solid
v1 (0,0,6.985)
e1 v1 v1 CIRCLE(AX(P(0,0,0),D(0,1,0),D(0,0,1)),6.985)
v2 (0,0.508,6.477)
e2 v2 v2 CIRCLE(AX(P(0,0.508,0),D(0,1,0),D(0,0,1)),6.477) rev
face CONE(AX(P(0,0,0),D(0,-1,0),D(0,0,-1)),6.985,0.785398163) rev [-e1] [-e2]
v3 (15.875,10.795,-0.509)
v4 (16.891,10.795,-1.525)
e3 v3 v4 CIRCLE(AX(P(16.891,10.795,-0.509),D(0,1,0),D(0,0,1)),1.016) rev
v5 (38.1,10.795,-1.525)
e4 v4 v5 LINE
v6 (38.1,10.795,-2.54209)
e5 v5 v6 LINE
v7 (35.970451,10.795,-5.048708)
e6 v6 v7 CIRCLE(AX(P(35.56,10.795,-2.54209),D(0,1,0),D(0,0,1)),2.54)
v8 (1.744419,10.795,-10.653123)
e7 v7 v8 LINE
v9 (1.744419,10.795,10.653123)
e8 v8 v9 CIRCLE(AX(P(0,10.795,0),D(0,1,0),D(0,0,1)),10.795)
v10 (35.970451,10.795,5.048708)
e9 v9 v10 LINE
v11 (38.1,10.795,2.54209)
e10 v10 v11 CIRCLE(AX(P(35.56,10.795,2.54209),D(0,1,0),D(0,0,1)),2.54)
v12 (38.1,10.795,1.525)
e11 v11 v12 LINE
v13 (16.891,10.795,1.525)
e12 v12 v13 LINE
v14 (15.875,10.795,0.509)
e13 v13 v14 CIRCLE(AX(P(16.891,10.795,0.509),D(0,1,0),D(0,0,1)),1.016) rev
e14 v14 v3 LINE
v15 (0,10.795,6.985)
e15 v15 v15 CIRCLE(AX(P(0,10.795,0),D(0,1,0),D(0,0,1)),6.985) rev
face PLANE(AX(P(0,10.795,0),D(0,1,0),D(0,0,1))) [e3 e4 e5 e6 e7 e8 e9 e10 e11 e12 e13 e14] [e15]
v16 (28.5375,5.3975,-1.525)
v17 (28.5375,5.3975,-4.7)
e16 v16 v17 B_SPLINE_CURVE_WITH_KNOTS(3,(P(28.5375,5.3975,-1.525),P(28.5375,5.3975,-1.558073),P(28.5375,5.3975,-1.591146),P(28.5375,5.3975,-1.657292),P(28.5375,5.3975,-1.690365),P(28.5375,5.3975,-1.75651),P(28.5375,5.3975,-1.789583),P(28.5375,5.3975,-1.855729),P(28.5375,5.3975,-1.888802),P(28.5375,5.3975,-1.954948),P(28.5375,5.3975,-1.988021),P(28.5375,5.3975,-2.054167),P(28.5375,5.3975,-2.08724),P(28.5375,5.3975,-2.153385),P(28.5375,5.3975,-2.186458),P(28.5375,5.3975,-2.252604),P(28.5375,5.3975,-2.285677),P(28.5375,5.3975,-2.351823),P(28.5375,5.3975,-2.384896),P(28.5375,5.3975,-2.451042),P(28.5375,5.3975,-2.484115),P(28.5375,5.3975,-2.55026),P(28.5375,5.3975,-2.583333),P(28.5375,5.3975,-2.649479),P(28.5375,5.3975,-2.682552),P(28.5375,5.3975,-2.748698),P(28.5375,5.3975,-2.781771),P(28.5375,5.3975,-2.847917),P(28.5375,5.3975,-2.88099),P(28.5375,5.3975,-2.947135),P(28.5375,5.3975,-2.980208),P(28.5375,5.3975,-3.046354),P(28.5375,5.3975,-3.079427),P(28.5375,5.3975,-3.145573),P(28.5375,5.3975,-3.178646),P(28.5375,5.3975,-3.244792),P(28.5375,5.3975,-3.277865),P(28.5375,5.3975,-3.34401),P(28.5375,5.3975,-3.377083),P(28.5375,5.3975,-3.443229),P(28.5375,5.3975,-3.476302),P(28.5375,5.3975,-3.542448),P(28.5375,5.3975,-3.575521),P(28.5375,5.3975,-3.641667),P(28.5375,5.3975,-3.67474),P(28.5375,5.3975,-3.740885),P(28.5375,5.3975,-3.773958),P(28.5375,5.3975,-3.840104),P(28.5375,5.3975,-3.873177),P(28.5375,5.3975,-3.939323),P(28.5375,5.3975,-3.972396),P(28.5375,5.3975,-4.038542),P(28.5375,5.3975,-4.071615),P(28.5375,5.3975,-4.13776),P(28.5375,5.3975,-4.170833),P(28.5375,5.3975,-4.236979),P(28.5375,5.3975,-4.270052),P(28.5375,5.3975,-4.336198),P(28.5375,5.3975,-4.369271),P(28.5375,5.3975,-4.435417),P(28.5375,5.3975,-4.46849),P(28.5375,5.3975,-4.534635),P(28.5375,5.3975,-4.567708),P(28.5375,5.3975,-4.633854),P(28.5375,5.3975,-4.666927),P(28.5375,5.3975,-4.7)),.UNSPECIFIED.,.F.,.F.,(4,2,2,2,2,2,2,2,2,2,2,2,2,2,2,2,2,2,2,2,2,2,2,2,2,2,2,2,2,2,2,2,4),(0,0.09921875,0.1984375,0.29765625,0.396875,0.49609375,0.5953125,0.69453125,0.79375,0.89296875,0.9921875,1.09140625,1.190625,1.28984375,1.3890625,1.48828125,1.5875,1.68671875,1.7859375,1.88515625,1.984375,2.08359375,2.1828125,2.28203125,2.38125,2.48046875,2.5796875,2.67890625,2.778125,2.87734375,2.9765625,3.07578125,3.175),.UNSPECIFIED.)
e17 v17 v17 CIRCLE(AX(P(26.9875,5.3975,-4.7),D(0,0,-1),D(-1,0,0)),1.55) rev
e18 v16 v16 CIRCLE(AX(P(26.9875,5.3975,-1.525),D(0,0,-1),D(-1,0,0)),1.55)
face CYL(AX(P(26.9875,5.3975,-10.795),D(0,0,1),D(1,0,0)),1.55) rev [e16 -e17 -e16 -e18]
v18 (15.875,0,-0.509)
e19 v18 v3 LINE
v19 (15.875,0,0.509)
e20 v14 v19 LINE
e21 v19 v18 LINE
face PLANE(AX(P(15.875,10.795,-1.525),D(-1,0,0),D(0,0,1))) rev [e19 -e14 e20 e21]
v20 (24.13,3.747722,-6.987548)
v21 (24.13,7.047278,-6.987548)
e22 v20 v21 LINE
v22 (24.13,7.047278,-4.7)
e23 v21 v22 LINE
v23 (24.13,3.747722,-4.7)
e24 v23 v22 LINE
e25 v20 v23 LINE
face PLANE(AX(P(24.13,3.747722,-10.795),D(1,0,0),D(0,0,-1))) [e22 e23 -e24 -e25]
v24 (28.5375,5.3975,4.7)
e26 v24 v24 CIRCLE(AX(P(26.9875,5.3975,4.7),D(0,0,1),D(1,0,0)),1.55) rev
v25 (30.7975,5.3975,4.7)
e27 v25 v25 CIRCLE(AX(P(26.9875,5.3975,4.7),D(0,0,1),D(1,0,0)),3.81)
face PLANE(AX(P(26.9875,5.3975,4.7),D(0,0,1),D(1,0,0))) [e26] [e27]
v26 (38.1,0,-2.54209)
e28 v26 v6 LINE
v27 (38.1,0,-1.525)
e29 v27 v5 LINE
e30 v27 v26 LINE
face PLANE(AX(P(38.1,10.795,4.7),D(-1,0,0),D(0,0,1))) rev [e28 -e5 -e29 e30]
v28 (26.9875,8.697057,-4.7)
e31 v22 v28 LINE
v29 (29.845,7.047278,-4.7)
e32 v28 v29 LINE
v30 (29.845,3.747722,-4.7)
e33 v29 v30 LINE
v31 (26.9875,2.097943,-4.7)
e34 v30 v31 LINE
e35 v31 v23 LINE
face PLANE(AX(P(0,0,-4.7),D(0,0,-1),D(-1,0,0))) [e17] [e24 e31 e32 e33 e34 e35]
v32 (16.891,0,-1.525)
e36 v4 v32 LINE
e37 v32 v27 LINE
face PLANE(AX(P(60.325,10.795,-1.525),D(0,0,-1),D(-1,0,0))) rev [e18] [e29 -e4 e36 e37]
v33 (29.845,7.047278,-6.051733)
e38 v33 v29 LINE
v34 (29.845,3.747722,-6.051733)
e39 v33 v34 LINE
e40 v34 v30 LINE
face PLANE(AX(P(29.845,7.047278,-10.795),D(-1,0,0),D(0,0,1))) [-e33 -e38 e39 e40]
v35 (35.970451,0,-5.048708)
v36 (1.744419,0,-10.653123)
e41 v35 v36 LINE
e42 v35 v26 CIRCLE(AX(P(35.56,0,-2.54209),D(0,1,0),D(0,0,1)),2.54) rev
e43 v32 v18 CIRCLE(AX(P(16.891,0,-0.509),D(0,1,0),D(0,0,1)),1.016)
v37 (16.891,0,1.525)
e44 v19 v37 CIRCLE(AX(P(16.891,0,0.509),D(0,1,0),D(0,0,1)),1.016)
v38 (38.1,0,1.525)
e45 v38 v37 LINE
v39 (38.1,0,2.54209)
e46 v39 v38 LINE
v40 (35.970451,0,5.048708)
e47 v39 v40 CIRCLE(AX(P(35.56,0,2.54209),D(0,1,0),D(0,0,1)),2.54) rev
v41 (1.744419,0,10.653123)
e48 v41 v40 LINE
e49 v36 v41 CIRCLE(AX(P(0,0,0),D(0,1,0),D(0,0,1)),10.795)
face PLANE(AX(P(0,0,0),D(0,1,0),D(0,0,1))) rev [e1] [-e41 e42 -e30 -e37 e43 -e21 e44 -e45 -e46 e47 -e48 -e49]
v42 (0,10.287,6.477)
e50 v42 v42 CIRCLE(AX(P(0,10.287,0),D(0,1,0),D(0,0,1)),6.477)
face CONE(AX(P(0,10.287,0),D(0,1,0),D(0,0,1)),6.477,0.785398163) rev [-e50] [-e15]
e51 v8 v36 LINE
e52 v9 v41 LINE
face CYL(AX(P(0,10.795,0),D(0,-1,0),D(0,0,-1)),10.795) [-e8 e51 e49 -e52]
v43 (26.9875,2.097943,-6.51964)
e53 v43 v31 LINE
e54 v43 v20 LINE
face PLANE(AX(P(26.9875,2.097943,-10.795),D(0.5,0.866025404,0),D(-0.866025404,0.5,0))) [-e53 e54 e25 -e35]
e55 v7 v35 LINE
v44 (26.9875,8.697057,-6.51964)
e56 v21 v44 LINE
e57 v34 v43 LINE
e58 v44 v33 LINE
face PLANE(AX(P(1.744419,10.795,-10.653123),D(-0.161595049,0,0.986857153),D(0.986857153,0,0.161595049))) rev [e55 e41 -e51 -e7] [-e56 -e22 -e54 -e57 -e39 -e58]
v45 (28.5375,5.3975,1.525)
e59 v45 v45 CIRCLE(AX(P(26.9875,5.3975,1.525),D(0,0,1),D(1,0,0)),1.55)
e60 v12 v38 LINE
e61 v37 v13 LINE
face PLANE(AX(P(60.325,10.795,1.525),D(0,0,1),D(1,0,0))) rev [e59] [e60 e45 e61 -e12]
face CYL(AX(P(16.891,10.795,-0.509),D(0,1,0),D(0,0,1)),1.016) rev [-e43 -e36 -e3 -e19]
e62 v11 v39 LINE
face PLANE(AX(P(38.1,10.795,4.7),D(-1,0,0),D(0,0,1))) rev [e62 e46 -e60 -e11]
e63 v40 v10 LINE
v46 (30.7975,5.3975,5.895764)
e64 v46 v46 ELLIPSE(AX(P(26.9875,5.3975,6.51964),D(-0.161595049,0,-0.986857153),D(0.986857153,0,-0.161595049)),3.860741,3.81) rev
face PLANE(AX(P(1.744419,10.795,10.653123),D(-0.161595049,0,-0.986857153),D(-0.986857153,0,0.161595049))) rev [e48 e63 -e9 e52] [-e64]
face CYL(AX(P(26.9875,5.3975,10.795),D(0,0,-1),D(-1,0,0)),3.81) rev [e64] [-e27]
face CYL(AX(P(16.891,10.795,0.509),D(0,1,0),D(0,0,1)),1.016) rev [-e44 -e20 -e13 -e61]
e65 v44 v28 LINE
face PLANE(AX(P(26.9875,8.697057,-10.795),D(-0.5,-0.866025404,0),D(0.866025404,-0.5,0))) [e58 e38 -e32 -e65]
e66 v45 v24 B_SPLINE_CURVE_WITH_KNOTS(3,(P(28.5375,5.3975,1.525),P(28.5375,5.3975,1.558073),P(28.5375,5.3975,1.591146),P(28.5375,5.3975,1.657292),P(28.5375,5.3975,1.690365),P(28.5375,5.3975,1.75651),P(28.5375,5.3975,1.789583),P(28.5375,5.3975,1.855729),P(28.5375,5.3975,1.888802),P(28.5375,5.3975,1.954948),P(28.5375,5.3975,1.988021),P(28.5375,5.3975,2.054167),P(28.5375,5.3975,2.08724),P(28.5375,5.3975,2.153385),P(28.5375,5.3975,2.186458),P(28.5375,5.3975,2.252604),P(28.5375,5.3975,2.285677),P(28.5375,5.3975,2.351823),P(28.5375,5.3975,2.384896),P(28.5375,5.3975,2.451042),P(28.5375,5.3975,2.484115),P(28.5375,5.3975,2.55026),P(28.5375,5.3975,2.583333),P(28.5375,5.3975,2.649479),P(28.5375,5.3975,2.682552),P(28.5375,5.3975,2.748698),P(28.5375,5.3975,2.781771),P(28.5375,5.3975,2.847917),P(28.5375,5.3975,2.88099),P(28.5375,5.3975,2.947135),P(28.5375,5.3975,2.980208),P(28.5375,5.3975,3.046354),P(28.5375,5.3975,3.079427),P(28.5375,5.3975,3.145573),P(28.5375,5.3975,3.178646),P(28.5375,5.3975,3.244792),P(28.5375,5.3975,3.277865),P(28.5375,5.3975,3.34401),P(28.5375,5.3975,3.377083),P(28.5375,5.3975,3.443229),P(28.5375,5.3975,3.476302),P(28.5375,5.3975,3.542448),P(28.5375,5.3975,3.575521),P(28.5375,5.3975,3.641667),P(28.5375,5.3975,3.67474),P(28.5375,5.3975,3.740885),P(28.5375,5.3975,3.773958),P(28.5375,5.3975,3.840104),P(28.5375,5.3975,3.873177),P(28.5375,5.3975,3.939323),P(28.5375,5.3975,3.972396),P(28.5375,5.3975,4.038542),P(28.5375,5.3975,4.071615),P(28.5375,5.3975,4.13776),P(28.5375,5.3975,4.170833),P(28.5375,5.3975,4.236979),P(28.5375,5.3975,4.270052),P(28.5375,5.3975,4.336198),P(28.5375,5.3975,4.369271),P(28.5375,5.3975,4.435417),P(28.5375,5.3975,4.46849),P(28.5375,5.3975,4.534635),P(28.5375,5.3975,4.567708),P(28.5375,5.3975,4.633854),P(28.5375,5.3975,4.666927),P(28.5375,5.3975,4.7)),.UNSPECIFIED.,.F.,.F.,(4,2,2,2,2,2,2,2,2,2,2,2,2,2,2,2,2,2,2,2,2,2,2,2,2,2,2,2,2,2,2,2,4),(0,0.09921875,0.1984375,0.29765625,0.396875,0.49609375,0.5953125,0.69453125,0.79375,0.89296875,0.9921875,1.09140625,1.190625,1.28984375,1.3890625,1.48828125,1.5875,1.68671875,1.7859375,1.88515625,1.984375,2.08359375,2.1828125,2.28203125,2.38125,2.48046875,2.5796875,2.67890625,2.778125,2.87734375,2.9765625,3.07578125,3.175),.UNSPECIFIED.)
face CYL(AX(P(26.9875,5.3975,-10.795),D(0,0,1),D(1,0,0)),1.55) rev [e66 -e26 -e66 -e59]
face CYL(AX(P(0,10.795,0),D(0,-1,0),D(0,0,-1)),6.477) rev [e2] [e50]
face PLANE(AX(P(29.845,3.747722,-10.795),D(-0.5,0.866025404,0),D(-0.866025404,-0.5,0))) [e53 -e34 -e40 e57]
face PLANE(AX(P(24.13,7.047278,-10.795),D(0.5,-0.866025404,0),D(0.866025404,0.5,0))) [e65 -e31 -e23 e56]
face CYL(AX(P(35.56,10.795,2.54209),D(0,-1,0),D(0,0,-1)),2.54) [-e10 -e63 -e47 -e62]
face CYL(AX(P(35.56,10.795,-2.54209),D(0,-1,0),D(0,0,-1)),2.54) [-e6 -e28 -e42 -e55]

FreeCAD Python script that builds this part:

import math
import FreeCAD as App
import Part
import Sketcher

V = App.Vector
Q = App.Units.Quantity


def edges_at(feature, points):
    """Names of the edges that pass closest to the given points."""
    edges = feature.Shape.Edges
    near = lambda p: min(range(len(edges)), key=lambda i: edges[i].distToShape(Part.Vertex(*p))[0])
    return sorted({f"Edge{near(p) + 1}" for p in points})

doc = App.newDocument("Part")
body = doc.addObject("PartDesign::Body", "Body")

sketch1 = body.newObject("Sketcher::SketchObject", "Sketch")
sketch1.AttachmentSupport = (doc.getObject("XZ_Plane"), [""])
sketch1.MapMode = "FlatFace"
sketch1.addGeometry([
    Part.LineSegment(V(38.1, -4.7, 0), V(1.7, -10.7, 0)),
    Part.ArcOfCircle(Part.Circle(V(0, 0, 0), V(0, 0, 1), 10.8), math.radians(81), math.radians(279)),
    Part.LineSegment(V(1.7, 10.7, 0), V(38.1, 4.7, 0)),
    Part.LineSegment(V(38.1, 4.7, 0), V(60.3, 4.7, 0)),
    Part.LineSegment(V(60.3, 4.7, 0), V(60.3, 1.5, 0)),
    Part.LineSegment(V(60.3, 1.5, 0), V(15.9, 1.5, 0)),
    Part.LineSegment(V(15.9, 1.5, 0), V(15.9, -1.5, 0)),
    Part.LineSegment(V(15.9, -1.5, 0), V(60.3, -1.5, 0)),
    Part.LineSegment(V(60.3, -1.5, 0), V(60.3, -4.7, 0)),
    Part.LineSegment(V(60.3, -4.7, 0), V(38.1, -4.7, 0)),
    Part.Circle(V(0, 0, 0), V(0, 0, 1), 6.5),
], False)
sketch1.addConstraint([
    Sketcher.Constraint("Tangent", 0, 2, 1, 2),
    Sketcher.Constraint("Tangent", 1, 1, 2, 1),
    Sketcher.Constraint("Coincident", 2, 2, 3, 1),
    Sketcher.Constraint("Coincident", 3, 2, 4, 1),
    Sketcher.Constraint("Coincident", 4, 2, 5, 1),
    Sketcher.Constraint("Coincident", 5, 2, 6, 1),
    Sketcher.Constraint("Coincident", 6, 2, 7, 1),
    Sketcher.Constraint("Coincident", 7, 2, 8, 1),
    Sketcher.Constraint("Coincident", 8, 2, 9, 1),
    Sketcher.Constraint("Coincident", 9, 2, 0, 1),
    Sketcher.Constraint("Horizontal", 3),
    Sketcher.Constraint("Vertical", 4),
    Sketcher.Constraint("Horizontal", 5),
    Sketcher.Constraint("Vertical", 6),
    Sketcher.Constraint("Horizontal", 7),
    Sketcher.Constraint("Vertical", 8),
    Sketcher.Constraint("Horizontal", 9),
    Sketcher.Constraint("Coincident", 1, 3, -1, 1),
    Sketcher.Constraint("Coincident", 10, 3, -1, 1),
    Sketcher.Constraint("Symmetric", 4, 2, 7, 2, -1),
    Sketcher.Constraint("Symmetric", 2, 2, 9, 2, -1),
    Sketcher.Constraint("Diameter", 10, Q("0.51 in")),
    Sketcher.Constraint("Radius", 1, Q("0.425 in")),
    Sketcher.Constraint("DistanceX", 5, 2, 5, 1, Q("1.75 in")),
    Sketcher.Constraint("DistanceX", -1, 1, 2, 2, Q("1.5 in")),
    Sketcher.Constraint("DistanceX", 3, 1, 3, 2, Q("0.875 in")),
    Sketcher.Constraint("DistanceY", 4, 2, 4, 1, Q("0.125 in")),
    Sketcher.Constraint("DistanceY", 2, 2, 1, 1, Q("0.2343749 in")),
])
pad1 = body.newObject("PartDesign::Pad", "Pad")
pad1.Profile = sketch1
pad1.Length = Q("0.425 in")
pad1.Reversed = True

sketch2 = body.newObject("Sketcher::SketchObject", "Sketch001")
sketch2.AttachmentSupport = (doc.getObject("XY_Plane"), [""])
sketch2.MapMode = "FlatFace"
sketch2.AttachmentOffset = App.Placement(V(0, 0, 4.7), App.Rotation())
sketch2.addGeometry([
    Part.Circle(V(27, 5.4, 0), V(0, 0, 1), 1.6),
    Part.Circle(V(49.2, 5.4, 0), V(0, 0, 1), 1.6),
], False)
sketch2.addConstraint([
    Sketcher.Constraint("Equal", 0, 1),
    Sketcher.Constraint("Horizontal", 0, 3, 1, 3),
    Sketcher.Constraint("Diameter", 0, 3.1),
    Sketcher.Constraint("DistanceX", -1, 1, 0, 3, Q("1.0625 in")),
    Sketcher.Constraint("DistanceX", -1, 1, 1, 3, Q("1.9375 in")),
    Sketcher.Constraint("DistanceY", -1, 1, 0, 3, Q("0.2125 in")),
])
pocket1 = body.newObject("PartDesign::Pocket", "Pocket")
pocket1.Profile = sketch2
pocket1.Type = "ThroughAll"
pocket1.Midplane = True

sketch3 = body.newObject("Sketcher::SketchObject", "Sketch002")
sketch3.AttachmentSupport = (doc.getObject("XY_Plane"), [""])
sketch3.MapMode = "FlatFace"
sketch3.AttachmentOffset = App.Placement(V(0, 0, 4.7), App.Rotation())
sketch3.addGeometry(Part.Circle(V(27, 5.4, 0), V(0, 0, 1), 3.8), False)
sketch3.addConstraint([
    Sketcher.Constraint("Diameter", 0, Q("0.3 in")),
    Sketcher.Constraint("DistanceX", -1, 1, 0, 3, Q("1.0625 in")),
    Sketcher.Constraint("DistanceY", -1, 1, 0, 3, Q("0.2125 in")),
])
pocket2 = body.newObject("PartDesign::Pocket", "Pocket001")
pocket2.Profile = sketch3
pocket2.Type = "ThroughAll"
pocket2.Reversed = True

sketch4 = body.newObject("Sketcher::SketchObject", "Sketch003")
sketch4.AttachmentSupport = (doc.getObject("XY_Plane"), [""])
sketch4.MapMode = "FlatFace"
sketch4.AttachmentOffset = App.Placement(V(0, 0, -4.7), App.Rotation())
sketch4.addGeometry([
    Part.LineSegment(V(24.1, 3.7, 0), V(24.1, 7, 0)),
    Part.LineSegment(V(24.1, 7, 0), V(27, 8.7, 0)),
    Part.LineSegment(V(27, 8.7, 0), V(29.8, 7, 0)),
    Part.LineSegment(V(29.8, 7, 0), V(29.8, 3.7, 0)),
    Part.LineSegment(V(29.8, 3.7, 0), V(27, 2.1, 0)),
    Part.LineSegment(V(27, 2.1, 0), V(24.1, 3.7, 0)),
], False)
sketch4.addConstraint([
    Sketcher.Constraint("Coincident", 0, 2, 1, 1),
    Sketcher.Constraint("Coincident", 1, 2, 2, 1),
    Sketcher.Constraint("Coincident", 2, 2, 3, 1),
    Sketcher.Constraint("Coincident", 3, 2, 4, 1),
    Sketcher.Constraint("Coincident", 4, 2, 5, 1),
    Sketcher.Constraint("Coincident", 5, 2, 0, 1),
    Sketcher.Constraint("Vertical", 0),
    Sketcher.Constraint("Vertical", 3),
    Sketcher.Constraint("Parallel", 1, 4),
    Sketcher.Constraint("Parallel", 2, 5),
    Sketcher.Constraint("Horizontal", 0, 2, 2, 2),
    Sketcher.Constraint("Horizontal", 3, 2, 5, 2),
    Sketcher.Constraint("Vertical", 1, 2, 4, 2),
    Sketcher.Constraint("Angle", 1, Q("30 deg")),
    Sketcher.Constraint("DistanceX", -1, 1, 0, 2, Q("0.95 in")),
    Sketcher.Constraint("DistanceX", -1, 1, 1, 2, Q("1.0625 in")),
    Sketcher.Constraint("DistanceY", 0, 1, 0, 2, 3.299557),
    Sketcher.Constraint("DistanceY", -1, 1, 0, 2, 7.047278),
])
pocket3 = body.newObject("PartDesign::Pocket", "Pocket002")
pocket3.Profile = sketch4
pocket3.Type = "ThroughAll"
doc.recompute()

fillet = body.newObject("PartDesign::Fillet", "Fillet")
fillet.Base = (pocket3, edges_at(pocket3, [(15.875, 5.397, -1.525), (15.875, 5.397, 1.525)]))
fillet.Radius = Q("0.04 in")

sketch5 = body.newObject("Sketcher::SketchObject", "Sketch004")
sketch5.AttachmentSupport = (doc.getObject("XZ_Plane"), [""])
sketch5.MapMode = "FlatFace"
sketch5.addGeometry([
    Part.LineSegment(V(38, 5, 0), V(38, -5, 0)),
    Part.LineSegment(V(38, -5, 0), V(60, -5, 0)),
    Part.LineSegment(V(60, -5, 0), V(60, 5, 0)),
    Part.LineSegment(V(60, 5, 0), V(38, 5, 0)),
], False)
sketch5.addConstraint([
    Sketcher.Constraint("Coincident", 0, 2, 1, 1),
    Sketcher.Constraint("Coincident", 1, 2, 2, 1),
    Sketcher.Constraint("Coincident", 2, 2, 3, 1),
    Sketcher.Constraint("Coincident", 3, 2, 0, 1),
    Sketcher.Constraint("Vertical", 0),
    Sketcher.Constraint("Horizontal", 1),
    Sketcher.Constraint("Vertical", 2),
    Sketcher.Constraint("Horizontal", 3),
    Sketcher.Constraint("DistanceX", -1, 1, 0, 2, Q("1.5 in")),
    Sketcher.Constraint("DistanceX", 1, 1, 1, 2, Q("0.875 in")),
    Sketcher.Constraint("DistanceY", 0, 2, 0, 1, 9.4),
    Sketcher.Constraint("DistanceY", 0, 2, -1, 1, 4.7),
])
pocket4 = body.newObject("PartDesign::Pocket", "Pocket003")
pocket4.Profile = sketch5
pocket4.Type = "ThroughAll"
doc.recompute()

fillet2 = body.newObject("PartDesign::Fillet", "Fillet001")
fillet2.Base = (pocket4, edges_at(pocket4, [(38.1, 5.397, -4.7), (38.1, 5.397, 4.7)]))
fillet2.Radius = Q("0.1 in")
doc.recompute()

chamfer = body.newObject("PartDesign::Chamfer", "Chamfer")
chamfer.Base = (fillet2, edges_at(fillet2, [(0, 0, -6.477), (0, 10.795, -6.477)]))
chamfer.Size = Q("0.02 in")

doc.recompute()
